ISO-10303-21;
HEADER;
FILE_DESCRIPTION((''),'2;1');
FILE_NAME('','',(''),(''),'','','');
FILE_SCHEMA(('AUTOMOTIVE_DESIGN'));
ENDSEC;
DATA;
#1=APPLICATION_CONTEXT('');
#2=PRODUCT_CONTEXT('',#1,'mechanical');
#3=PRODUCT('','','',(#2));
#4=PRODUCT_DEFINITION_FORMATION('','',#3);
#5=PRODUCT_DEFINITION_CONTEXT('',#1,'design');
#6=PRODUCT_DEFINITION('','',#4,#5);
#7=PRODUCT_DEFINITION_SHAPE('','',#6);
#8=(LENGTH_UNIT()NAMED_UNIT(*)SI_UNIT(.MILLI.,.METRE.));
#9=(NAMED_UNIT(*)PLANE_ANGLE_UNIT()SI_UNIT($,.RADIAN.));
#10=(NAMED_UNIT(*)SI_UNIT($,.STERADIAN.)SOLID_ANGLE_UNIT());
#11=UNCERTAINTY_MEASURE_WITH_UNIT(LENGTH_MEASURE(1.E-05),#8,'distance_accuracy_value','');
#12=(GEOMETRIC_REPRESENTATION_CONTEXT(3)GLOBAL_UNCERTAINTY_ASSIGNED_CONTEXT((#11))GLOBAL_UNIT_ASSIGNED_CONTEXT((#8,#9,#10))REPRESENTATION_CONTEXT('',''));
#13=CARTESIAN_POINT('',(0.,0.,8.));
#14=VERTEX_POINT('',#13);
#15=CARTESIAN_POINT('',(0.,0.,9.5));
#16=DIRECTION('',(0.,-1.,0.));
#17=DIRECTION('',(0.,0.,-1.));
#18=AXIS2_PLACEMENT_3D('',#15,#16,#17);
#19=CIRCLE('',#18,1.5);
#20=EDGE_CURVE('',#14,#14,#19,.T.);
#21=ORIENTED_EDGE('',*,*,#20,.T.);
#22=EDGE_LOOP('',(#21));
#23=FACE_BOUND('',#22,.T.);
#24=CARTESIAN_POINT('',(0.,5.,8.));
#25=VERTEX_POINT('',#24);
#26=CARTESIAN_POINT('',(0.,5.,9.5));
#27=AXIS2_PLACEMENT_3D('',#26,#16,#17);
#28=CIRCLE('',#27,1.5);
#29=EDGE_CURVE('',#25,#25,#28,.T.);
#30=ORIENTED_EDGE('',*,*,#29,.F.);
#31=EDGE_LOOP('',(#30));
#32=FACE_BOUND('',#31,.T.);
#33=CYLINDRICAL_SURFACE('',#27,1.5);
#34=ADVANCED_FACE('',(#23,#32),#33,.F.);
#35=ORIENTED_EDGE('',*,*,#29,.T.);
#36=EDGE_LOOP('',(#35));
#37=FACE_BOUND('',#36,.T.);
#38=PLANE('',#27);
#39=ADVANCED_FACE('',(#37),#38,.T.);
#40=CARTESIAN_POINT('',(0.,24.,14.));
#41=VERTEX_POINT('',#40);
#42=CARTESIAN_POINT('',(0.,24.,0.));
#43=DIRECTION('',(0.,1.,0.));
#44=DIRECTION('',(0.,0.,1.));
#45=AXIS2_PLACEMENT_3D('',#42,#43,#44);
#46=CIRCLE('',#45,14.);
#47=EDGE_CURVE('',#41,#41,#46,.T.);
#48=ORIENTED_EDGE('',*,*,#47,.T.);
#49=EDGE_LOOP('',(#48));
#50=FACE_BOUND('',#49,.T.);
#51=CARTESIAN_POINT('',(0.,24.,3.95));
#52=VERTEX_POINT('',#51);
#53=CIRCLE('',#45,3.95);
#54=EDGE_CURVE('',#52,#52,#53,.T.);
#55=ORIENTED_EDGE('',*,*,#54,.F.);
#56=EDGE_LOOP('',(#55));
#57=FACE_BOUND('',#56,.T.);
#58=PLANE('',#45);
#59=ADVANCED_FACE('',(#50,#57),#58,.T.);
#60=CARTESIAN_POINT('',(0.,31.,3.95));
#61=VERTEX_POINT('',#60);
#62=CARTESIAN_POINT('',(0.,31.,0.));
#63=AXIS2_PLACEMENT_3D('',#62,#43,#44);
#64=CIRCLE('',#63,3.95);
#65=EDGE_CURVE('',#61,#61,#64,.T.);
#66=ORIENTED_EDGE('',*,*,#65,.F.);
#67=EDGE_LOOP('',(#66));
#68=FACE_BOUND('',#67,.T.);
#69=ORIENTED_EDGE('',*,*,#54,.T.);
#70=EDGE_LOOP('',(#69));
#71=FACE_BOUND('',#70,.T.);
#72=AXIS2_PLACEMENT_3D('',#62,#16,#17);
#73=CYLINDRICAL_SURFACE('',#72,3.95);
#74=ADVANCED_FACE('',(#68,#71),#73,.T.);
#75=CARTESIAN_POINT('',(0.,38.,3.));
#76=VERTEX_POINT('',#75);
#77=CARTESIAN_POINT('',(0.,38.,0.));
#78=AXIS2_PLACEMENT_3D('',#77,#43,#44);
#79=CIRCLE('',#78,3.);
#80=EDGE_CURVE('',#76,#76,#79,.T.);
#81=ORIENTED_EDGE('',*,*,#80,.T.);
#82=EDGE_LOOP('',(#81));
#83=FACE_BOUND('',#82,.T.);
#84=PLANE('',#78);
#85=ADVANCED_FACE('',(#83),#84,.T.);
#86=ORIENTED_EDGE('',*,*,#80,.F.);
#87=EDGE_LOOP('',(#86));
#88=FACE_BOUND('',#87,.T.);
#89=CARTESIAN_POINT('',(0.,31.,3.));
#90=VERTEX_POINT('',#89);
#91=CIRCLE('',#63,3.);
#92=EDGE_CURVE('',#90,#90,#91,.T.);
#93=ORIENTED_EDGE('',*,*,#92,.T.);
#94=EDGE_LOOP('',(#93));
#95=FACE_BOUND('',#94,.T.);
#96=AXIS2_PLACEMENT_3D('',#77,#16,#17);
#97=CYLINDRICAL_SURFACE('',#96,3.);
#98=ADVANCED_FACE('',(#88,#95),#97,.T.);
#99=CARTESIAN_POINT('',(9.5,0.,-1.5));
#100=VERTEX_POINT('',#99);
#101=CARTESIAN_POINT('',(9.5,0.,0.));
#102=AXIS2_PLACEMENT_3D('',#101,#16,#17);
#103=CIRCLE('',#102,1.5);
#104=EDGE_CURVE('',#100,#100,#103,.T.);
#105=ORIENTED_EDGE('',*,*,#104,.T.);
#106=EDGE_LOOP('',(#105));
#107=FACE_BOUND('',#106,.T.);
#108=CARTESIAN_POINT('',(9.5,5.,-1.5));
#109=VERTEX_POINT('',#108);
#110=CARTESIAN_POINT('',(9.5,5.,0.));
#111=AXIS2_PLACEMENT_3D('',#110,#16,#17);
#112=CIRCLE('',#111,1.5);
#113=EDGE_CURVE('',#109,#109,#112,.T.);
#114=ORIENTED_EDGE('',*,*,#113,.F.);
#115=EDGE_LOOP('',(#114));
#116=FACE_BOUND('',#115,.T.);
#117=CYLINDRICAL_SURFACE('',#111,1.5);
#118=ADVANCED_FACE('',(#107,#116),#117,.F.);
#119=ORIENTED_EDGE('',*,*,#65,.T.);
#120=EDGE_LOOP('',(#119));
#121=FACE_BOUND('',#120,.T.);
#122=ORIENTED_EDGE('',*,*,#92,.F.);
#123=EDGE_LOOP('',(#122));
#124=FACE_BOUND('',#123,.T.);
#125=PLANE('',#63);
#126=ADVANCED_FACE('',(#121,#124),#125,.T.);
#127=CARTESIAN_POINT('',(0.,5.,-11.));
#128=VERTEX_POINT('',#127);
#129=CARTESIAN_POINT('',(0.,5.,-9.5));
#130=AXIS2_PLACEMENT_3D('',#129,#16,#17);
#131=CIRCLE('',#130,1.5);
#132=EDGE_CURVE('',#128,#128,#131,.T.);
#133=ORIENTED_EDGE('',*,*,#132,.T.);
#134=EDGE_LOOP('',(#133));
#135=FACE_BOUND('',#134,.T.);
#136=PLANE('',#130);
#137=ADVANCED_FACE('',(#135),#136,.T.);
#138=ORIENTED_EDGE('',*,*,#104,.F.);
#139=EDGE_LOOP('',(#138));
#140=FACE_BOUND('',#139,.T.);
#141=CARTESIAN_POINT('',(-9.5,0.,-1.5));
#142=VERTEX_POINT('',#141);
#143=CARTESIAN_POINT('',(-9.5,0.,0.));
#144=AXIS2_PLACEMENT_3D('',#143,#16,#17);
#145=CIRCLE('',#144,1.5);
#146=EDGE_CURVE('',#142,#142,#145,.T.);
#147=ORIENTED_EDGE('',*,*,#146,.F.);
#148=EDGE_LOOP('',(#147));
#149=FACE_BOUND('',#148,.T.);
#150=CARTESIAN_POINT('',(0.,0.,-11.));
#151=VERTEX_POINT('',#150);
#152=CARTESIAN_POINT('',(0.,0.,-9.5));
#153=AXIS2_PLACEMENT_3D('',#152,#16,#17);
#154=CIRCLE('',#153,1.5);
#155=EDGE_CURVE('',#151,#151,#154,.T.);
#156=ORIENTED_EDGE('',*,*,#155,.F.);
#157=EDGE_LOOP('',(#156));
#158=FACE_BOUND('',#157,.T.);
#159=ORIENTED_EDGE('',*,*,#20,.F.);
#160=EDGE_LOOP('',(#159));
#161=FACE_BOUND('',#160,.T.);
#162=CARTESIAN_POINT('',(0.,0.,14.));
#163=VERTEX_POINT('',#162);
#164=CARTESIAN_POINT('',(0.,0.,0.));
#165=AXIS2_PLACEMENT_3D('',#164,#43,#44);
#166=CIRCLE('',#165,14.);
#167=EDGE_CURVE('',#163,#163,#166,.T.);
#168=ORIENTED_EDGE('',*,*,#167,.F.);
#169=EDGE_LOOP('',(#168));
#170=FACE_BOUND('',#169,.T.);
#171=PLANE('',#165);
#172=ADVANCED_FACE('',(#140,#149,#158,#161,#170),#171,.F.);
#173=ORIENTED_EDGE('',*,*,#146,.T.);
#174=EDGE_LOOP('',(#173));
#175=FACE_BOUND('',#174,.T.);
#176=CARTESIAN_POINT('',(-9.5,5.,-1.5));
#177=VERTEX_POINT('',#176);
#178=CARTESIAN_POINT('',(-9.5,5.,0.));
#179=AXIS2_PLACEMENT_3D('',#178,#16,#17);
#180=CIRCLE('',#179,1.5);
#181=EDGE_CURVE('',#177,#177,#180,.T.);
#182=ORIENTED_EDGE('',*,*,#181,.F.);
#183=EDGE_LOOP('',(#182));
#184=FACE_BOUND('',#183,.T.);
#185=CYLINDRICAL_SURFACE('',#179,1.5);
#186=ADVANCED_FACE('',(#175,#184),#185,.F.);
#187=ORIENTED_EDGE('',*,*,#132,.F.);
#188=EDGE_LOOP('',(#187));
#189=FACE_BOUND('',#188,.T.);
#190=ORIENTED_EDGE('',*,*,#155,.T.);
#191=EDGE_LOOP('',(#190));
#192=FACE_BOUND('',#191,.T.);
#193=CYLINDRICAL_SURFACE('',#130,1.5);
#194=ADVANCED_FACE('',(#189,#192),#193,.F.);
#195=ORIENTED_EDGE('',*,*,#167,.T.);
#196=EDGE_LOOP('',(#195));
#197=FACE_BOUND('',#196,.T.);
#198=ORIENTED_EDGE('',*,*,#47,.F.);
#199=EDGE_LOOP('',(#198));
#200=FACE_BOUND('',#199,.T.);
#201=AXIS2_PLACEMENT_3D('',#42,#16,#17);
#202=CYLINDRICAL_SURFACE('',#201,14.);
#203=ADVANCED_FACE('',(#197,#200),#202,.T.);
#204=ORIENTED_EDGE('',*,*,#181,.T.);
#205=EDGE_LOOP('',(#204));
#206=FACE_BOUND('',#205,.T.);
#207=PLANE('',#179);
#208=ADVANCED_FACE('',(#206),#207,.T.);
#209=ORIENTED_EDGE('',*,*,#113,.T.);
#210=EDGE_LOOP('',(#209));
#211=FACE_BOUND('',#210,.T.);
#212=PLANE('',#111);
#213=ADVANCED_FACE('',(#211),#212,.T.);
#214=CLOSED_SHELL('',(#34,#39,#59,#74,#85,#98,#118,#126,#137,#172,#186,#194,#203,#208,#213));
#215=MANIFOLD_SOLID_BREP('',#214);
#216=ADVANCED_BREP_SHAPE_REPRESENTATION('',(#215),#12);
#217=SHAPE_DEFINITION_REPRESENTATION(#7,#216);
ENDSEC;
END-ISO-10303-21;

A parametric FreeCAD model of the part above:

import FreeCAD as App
import Part
import Sketcher
from FreeCAD import Vector
Q = App.Units.Quantity

doc = App.newDocument("Part")
body = doc.addObject("PartDesign::Body", "Body")

# Sketch on XZ plane
sketch1 = body.newObject("Sketcher::SketchObject", "Sketch")
sketch1.AttachmentSupport = (doc.getObject("XZ_Plane"), [""])
sketch1.MapMode = "FlatFace"
sketch1.addGeometry(Part.Circle(Vector(0, 0, 0), Vector(0, 0, 1), 14), False)
sketch1.addConstraint([
    Sketcher.Constraint("Coincident", 0, 3, -1, 1),
    Sketcher.Constraint("Diameter", 0, Q("28 mm")),
])
pad1 = body.newObject("PartDesign::Pad", "Pad")
pad1.Profile = sketch1
pad1.Length = 24
pad1.Reversed = True

# Sketch on XZ plane
sketch2 = body.newObject("Sketcher::SketchObject", "Sketch001")
sketch2.AttachmentSupport = (doc.getObject("XZ_Plane"), [""])
sketch2.MapMode = "FlatFace"
sketch2.AttachmentOffset = App.Placement(Vector(0, 0, -24), App.Rotation())
sketch2.addGeometry(Part.Circle(Vector(0, 0, 0), Vector(0, 0, 1), 4), False)
sketch2.addConstraint([
    Sketcher.Constraint("Coincident", 0, 3, -1, 1),
    Sketcher.Constraint("Diameter", 0, Q("7.9 mm")),
])
pad2 = body.newObject("PartDesign::Pad", "Pad001")
pad2.Profile = sketch2
pad2.Length = 7
pad2.Reversed = True

# Sketch on XZ plane
sketch3 = body.newObject("Sketcher::SketchObject", "Sketch002")
sketch3.AttachmentSupport = (doc.getObject("XZ_Plane"), [""])
sketch3.MapMode = "FlatFace"
sketch3.AttachmentOffset = App.Placement(Vector(0, 0, -31), App.Rotation())
sketch3.addGeometry(Part.Circle(Vector(0, 0, 0), Vector(0, 0, 1), 3), False)
sketch3.addConstraint([
    Sketcher.Constraint("Coincident", 0, 3, -1, 1),
    Sketcher.Constraint("Diameter", 0, Q("6 mm")),
])
pad3 = body.newObject("PartDesign::Pad", "Pad002")
pad3.Profile = sketch3
pad3.Length = 7
pad3.Reversed = True

# Sketch on XZ plane
sketch4 = body.newObject("Sketcher::SketchObject", "Sketch003")
sketch4.AttachmentSupport = (doc.getObject("XZ_Plane"), [""])
sketch4.MapMode = "FlatFace"
sketch4.addGeometry([
    Part.Circle(Vector(9.5, 0, 0), Vector(0, 0, 1), 1.5),
    Part.Circle(Vector(0, -9.5, 0), Vector(0, 0, 1), 1.5),
    Part.Circle(Vector(-9.5, 0, 0), Vector(0, 0, 1), 1.5),
    Part.Circle(Vector(0, 9.5, 0), Vector(0, 0, 1), 1.5),
], False)
sketch4.addConstraint([
    Sketcher.Constraint("Equal", 0, 1),
    Sketcher.Constraint("Equal", 1, 2),
    Sketcher.Constraint("Equal", 2, 3),
    Sketcher.Constraint("Symmetric", 0, 3, 2, 3, -1, 1),
    Sketcher.Constraint("Symmetric", 1, 3, 3, 3, -1, 1),
    Sketcher.Constraint("PointOnObject", 0, 3, -1),
    Sketcher.Constraint("PointOnObject", 1, 3, -2),
    Sketcher.Constraint("Diameter", 0, Q("3 mm")),
    Sketcher.Constraint("DistanceX", 2, 3, 0, 3, Q("19 mm")),
    Sketcher.Constraint("DistanceY", 1, 3, 3, 3, Q("19 mm")),
])
pocket1 = body.newObject("PartDesign::Pocket", "Pocket")
pocket1.Profile = sketch4
pocket1.Length = 5

doc.recompute()
